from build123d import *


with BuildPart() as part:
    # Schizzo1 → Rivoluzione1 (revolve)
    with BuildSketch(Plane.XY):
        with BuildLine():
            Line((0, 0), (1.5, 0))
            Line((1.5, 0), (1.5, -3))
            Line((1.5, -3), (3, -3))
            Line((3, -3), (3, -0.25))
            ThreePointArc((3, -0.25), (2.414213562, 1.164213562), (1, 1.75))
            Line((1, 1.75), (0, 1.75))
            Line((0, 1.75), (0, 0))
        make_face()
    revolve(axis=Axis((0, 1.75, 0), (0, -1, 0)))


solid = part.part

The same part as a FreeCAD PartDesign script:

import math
import FreeCAD as App
import Part
import Sketcher
Q = App.Units.Quantity

doc = App.newDocument("Part")
params = doc.addObject("Spreadsheet::Sheet", "Params")
for row, (alias, value) in enumerate([
    ("sketch1_radius", "2 mm"),
    ("sketch1_width", "1 mm"),
    ("sketch1_height", "3 mm"),
    ("sketch1_height2", "2.75 mm"),
    ("revolution_angle", "360 deg"),
], start=1):
    params.set(f"A{row}", alias)
    params.set(f"B{row}", "=" + value)
    params.setAlias(f"B{row}", alias)

body = doc.addObject("PartDesign::Body", "Body")

# Sketch on XY plane
sketch1 = body.newObject("Sketcher::SketchObject", "Sketch")
sketch1.AttachmentSupport = (doc.getObject("XY_Plane"), [""])
sketch1.MapMode = "FlatFace"
sketch1.addGeometry(Part.LineSegment(App.Vector(0, 0, 0), App.Vector(1.5, 0, 0)), False)
sketch1.addGeometry(Part.LineSegment(App.Vector(1.5, 0, 0), App.Vector(1.5, -3, 0)), False)
sketch1.addGeometry(Part.LineSegment(App.Vector(1.5, -3, 0), App.Vector(3, -3, 0)), False)
sketch1.addGeometry(Part.LineSegment(App.Vector(3, -3, 0), App.Vector(3, -0.2, 0)), False)
sketch1.addGeometry(Part.ArcOfCircle(Part.Circle(App.Vector(1, -0.3, 0), App.Vector(0, 0, 1), 2), math.radians(0), math.radians(90)), False)
sketch1.addGeometry(Part.LineSegment(App.Vector(1, 1.8, 0), App.Vector(0, 1.8, 0)), False)
sketch1.addGeometry(Part.LineSegment(App.Vector(0, 1.8, 0), App.Vector(0, 0, 0)), False)
sketch1.addConstraint(Sketcher.Constraint("Coincident", 0, 2, 1, 1))
sketch1.addConstraint(Sketcher.Constraint("Coincident", 1, 2, 2, 1))
sketch1.addConstraint(Sketcher.Constraint("Coincident", 2, 2, 3, 1))
sketch1.addConstraint(Sketcher.Constraint("Tangent", 3, 2, 4, 1))
sketch1.addConstraint(Sketcher.Constraint("Tangent", 4, 2, 5, 1))
sketch1.addConstraint(Sketcher.Constraint("Coincident", 5, 2, 6, 1))
sketch1.addConstraint(Sketcher.Constraint("Coincident", 6, 2, 0, 1))
sketch1.addConstraint(Sketcher.Constraint("Horizontal", 0))
sketch1.addConstraint(Sketcher.Constraint("Vertical", 1))
sketch1.addConstraint(Sketcher.Constraint("Horizontal", 2))
sketch1.addConstraint(Sketcher.Constraint("Vertical", 3))
sketch1.addConstraint(Sketcher.Constraint("Horizontal", 5))
sketch1.addConstraint(Sketcher.Constraint("Vertical", 6))
sketch1.addConstraint(Sketcher.Constraint("Coincident", 6, 2, -1, 1))
sketch1.addConstraint(Sketcher.Constraint("Equal", 0, 2))
sketch1.addConstraint(Sketcher.Constraint("Radius", 4, Q("2 mm")))
sketch1.addConstraint(Sketcher.Constraint("DistanceX", 5, 2, 5, 1, Q("1 mm")))
sketch1.addConstraint(Sketcher.Constraint("DistanceY", 1, 2, 1, 1, Q("3 mm")))
sketch1.addConstraint(Sketcher.Constraint("DistanceY", 3, 1, 3, 2, Q("2.75 mm")))
sketch1.setExpression("Constraints[15]", "Params.sketch1_radius")
sketch1.setExpression("Constraints[16]", "Params.sketch1_width")
sketch1.setExpression("Constraints[17]", "Params.sketch1_height")
sketch1.setExpression("Constraints[18]", "Params.sketch1_height2")
revolution = body.newObject("PartDesign::Revolution", "Revolution")
revolution.Profile = sketch1
revolution.ReferenceAxis = (sketch1, ["V_Axis"])
revolution.setExpression("Angle", "Params.revolution_angle")

doc.recompute()
